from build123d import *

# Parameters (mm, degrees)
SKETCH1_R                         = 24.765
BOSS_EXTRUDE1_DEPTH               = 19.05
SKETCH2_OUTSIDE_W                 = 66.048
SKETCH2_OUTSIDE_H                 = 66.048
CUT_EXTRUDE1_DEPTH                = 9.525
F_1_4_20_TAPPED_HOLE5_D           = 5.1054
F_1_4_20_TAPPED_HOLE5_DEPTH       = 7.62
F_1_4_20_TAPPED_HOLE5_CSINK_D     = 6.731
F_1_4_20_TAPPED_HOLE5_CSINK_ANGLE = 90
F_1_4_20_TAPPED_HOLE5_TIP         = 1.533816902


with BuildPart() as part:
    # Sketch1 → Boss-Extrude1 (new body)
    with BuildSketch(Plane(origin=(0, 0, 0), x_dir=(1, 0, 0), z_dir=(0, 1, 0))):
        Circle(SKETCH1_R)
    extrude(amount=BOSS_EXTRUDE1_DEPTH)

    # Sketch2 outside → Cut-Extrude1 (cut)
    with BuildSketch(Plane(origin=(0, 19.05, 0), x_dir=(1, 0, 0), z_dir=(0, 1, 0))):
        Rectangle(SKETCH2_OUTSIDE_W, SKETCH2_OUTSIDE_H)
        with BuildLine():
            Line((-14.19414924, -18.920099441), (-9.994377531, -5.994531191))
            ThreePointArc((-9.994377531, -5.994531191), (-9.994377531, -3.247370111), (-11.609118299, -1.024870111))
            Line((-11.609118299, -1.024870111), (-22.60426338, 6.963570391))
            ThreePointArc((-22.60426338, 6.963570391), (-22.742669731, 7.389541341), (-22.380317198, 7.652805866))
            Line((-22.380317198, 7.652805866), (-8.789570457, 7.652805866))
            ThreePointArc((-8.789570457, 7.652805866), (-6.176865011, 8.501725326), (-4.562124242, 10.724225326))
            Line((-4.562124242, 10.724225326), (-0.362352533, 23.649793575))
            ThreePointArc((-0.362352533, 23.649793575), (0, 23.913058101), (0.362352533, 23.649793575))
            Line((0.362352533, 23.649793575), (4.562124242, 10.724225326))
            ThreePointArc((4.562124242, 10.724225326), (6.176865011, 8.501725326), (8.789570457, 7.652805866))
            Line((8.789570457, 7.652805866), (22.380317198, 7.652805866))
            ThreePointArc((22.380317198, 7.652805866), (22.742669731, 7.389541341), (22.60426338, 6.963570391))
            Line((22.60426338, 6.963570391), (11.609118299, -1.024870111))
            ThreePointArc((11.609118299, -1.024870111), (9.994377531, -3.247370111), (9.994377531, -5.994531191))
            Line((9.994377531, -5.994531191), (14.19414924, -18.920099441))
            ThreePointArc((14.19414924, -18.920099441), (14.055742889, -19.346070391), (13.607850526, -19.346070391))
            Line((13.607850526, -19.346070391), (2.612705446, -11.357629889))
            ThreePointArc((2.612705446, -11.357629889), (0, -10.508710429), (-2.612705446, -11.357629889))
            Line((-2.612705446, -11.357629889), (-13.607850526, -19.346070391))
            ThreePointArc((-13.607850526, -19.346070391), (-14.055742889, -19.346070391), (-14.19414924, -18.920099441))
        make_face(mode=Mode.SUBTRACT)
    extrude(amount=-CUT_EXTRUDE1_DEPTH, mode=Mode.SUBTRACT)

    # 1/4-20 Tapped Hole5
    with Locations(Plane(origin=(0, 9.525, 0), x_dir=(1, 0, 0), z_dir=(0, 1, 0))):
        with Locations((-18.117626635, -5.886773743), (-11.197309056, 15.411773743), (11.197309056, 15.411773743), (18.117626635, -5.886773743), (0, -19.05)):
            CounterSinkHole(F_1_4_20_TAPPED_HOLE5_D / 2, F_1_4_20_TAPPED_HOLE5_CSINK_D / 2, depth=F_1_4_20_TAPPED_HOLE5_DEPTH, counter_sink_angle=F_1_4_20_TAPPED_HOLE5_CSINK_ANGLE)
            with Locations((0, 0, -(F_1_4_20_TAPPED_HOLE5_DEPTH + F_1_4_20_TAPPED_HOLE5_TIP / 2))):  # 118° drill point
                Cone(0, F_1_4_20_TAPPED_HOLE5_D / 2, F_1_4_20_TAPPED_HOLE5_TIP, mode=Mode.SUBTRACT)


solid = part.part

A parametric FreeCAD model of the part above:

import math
import FreeCAD as App
import Part
import Sketcher
Q = App.Units.Quantity


def add_polygon(sketch, points):
    """Adds a closed chain of lines whose ends are joined by coincident constraints."""
    first, n = sketch.GeometryCount, len(points)
    for a, b in zip(points, points[1:] + points[:1]):
        sketch.addGeometry(Part.LineSegment(App.Vector(*a, 0), App.Vector(*b, 0)), False)
    for i in range(n):
        sketch.addConstraint(Sketcher.Constraint("Coincident", first + i, 2, first + (i + 1) % n, 1))

doc = App.newDocument("Part")
body = doc.addObject("PartDesign::Body", "Body")

# Sketch on XZ plane
sketch1 = body.newObject("Sketcher::SketchObject", "Sketch")
sketch1.AttachmentSupport = (doc.getObject("XZ_Plane"), [""])
sketch1.MapMode = "FlatFace"
sketch1.addGeometry(Part.Circle(App.Vector(0, 0, 0), App.Vector(0, 0, 1), 24.765), False)
sketch1.addConstraint(Sketcher.Constraint("Coincident", 0, 3, -1, 1))
sketch1.addConstraint(Sketcher.Constraint("Diameter", 0, Q("1.95 in")))
pad1 = body.newObject("PartDesign::Pad", "Pad")
pad1.Profile = sketch1
pad1.Length = Q("0.75 in")
pad1.Reversed = True

# Sketch on XZ plane
sketch2 = body.newObject("Sketcher::SketchObject", "Sketch001")
sketch2.AttachmentSupport = (doc.getObject("XZ_Plane"), [""])
sketch2.MapMode = "FlatFace"
sketch2.AttachmentOffset = App.Placement(App.Vector(0, 0, -0.75 * 25.4), App.Rotation())
add_polygon(sketch2, [(-33.024, -33.024), (-33.024, 33.024), (33.024, 33.024), (33.024, -33.024)])  # lines 0-3
sketch2.addGeometry(Part.ArcOfCircle(Part.Circle(App.Vector(-13.831797, 19.037835, 0), App.Vector(0, 0, 1), 0.381), math.radians(54), math.radians(198)), False)  # 4
sketch2.addGeometry(Part.LineSegment(App.Vector(-14.194149, 18.920099, 0), App.Vector(-9.994378, 5.994531, 0)), False)  # 5
sketch2.addGeometry(Part.ArcOfCircle(Part.Circle(App.Vector(-14.221824, 4.620951, 0), App.Vector(0, 0, 1), 4.445), math.radians(-54), math.radians(18)), False)  # 6
sketch2.addGeometry(Part.LineSegment(App.Vector(-11.609118, 1.02487, 0), App.Vector(-22.604263, -6.96357, 0)), False)  # 7
sketch2.addGeometry(Part.ArcOfCircle(Part.Circle(App.Vector(-22.380317, -7.271806, 0), App.Vector(0, 0, 1), 0.381), math.radians(126), math.radians(270)), False)  # 8
sketch2.addGeometry(Part.LineSegment(App.Vector(-22.380317, -7.652806, 0), App.Vector(-8.78957, -7.652806, 0)), False)  # 9
sketch2.addGeometry(Part.ArcOfCircle(Part.Circle(App.Vector(-8.78957, -12.097806, 0), App.Vector(0, 0, 1), 4.445), math.radians(18), math.radians(90)), False)  # 10
sketch2.addGeometry(Part.LineSegment(App.Vector(-4.562124, -10.724225, 0), App.Vector(-0.362353, -23.649794, 0)), False)  # 11
sketch2.addGeometry(Part.ArcOfCircle(Part.Circle(App.Vector(0, -23.532058, 0), App.Vector(0, 0, 1), 0.381), math.radians(-162), math.radians(-18)), False)  # 12
sketch2.addGeometry(Part.LineSegment(App.Vector(0.362353, -23.649794, 0), App.Vector(4.562124, -10.724225, 0)), False)  # 13
sketch2.addGeometry(Part.ArcOfCircle(Part.Circle(App.Vector(8.78957, -12.097806, 0), App.Vector(0, 0, 1), 4.445), math.radians(90), math.radians(162)), False)  # 14
sketch2.addGeometry(Part.LineSegment(App.Vector(8.78957, -7.652806, 0), App.Vector(22.380317, -7.652806, 0)), False)  # 15
sketch2.addGeometry(Part.ArcOfCircle(Part.Circle(App.Vector(22.380317, -7.271806, 0), App.Vector(0, 0, 1), 0.381), math.radians(-90), math.radians(54)), False)  # 16
sketch2.addGeometry(Part.LineSegment(App.Vector(22.604263, -6.96357, 0), App.Vector(11.609118, 1.02487, 0)), False)  # 17
sketch2.addGeometry(Part.ArcOfCircle(Part.Circle(App.Vector(14.221824, 4.620951, 0), App.Vector(0, 0, 1), 4.445), math.radians(162), math.radians(234)), False)  # 18
sketch2.addGeometry(Part.LineSegment(App.Vector(9.994378, 5.994531, 0), App.Vector(14.194149, 18.920099, 0)), False)  # 19
sketch2.addGeometry(Part.ArcOfCircle(Part.Circle(App.Vector(13.831797, 19.037835, 0), App.Vector(0, 0, 1), 0.381), math.radians(-18), math.radians(126)), False)  # 20
sketch2.addGeometry(Part.LineSegment(App.Vector(13.607851, 19.34607, 0), App.Vector(2.612705, 11.35763, 0)), False)  # 21
sketch2.addGeometry(Part.ArcOfCircle(Part.Circle(App.Vector(0, 14.95371, 0), App.Vector(0, 0, 1), 4.445), math.radians(-126), math.radians(-54)), False)  # 22
sketch2.addGeometry(Part.LineSegment(App.Vector(-2.612705, 11.35763, 0), App.Vector(-13.607851, 19.34607, 0)), False)  # 23
sketch2.addConstraint(Sketcher.Constraint("Tangent", 4, 2, 5, 1))
sketch2.addConstraint(Sketcher.Constraint("Tangent", 5, 2, 6, 2))
sketch2.addConstraint(Sketcher.Constraint("Tangent", 6, 1, 7, 1))
sketch2.addConstraint(Sketcher.Constraint("Tangent", 7, 2, 8, 1))
sketch2.addConstraint(Sketcher.Constraint("Tangent", 8, 2, 9, 1))
sketch2.addConstraint(Sketcher.Constraint("Tangent", 9, 2, 10, 2))
sketch2.addConstraint(Sketcher.Constraint("Tangent", 10, 1, 11, 1))
sketch2.addConstraint(Sketcher.Constraint("Tangent", 11, 2, 12, 1))
sketch2.addConstraint(Sketcher.Constraint("Tangent", 12, 2, 13, 1))
sketch2.addConstraint(Sketcher.Constraint("Tangent", 13, 2, 14, 2))
sketch2.addConstraint(Sketcher.Constraint("Tangent", 14, 1, 15, 1))
sketch2.addConstraint(Sketcher.Constraint("Tangent", 15, 2, 16, 1))
sketch2.addConstraint(Sketcher.Constraint("Tangent", 16, 2, 17, 1))
sketch2.addConstraint(Sketcher.Constraint("Tangent", 17, 2, 18, 2))
sketch2.addConstraint(Sketcher.Constraint("Tangent", 18, 1, 19, 1))
sketch2.addConstraint(Sketcher.Constraint("Tangent", 19, 2, 20, 1))
sketch2.addConstraint(Sketcher.Constraint("Tangent", 20, 2, 21, 1))
sketch2.addConstraint(Sketcher.Constraint("Tangent", 21, 2, 22, 2))
sketch2.addConstraint(Sketcher.Constraint("Tangent", 22, 1, 23, 1))
sketch2.addConstraint(Sketcher.Constraint("Tangent", 23, 2, 4, 1))
sketch2.addConstraint(Sketcher.Constraint("Vertical", 0))
sketch2.addConstraint(Sketcher.Constraint("Horizontal", 1))
sketch2.addConstraint(Sketcher.Constraint("Vertical", 2))
sketch2.addConstraint(Sketcher.Constraint("Horizontal", 3))
sketch2.addConstraint(Sketcher.Constraint("Horizontal", 9))
sketch2.addConstraint(Sketcher.Constraint("Horizontal", 15))
sketch2.addConstraint(Sketcher.Constraint("Equal", 4, 8))
sketch2.addConstraint(Sketcher.Constraint("Equal", 6, 10))
sketch2.addConstraint(Sketcher.Constraint("Equal", 8, 12))
sketch2.addConstraint(Sketcher.Constraint("Equal", 10, 14))
sketch2.addConstraint(Sketcher.Constraint("Equal", 12, 16))
sketch2.addConstraint(Sketcher.Constraint("Equal", 14, 18))
sketch2.addConstraint(Sketcher.Constraint("Equal", 16, 20))
sketch2.addConstraint(Sketcher.Constraint("Equal", 18, 22))
sketch2.addConstraint(Sketcher.Constraint("Symmetric", 0, 2, 2, 2, -1, 1))
sketch2.addConstraint(Sketcher.Constraint("Symmetric", 10, 3, 14, 3, -2))
sketch2.addConstraint(Sketcher.Constraint("Symmetric", 6, 3, 18, 3, -2))
sketch2.addConstraint(Sketcher.Constraint("Symmetric", 4, 3, 20, 3, -2))
sketch2.addConstraint(Sketcher.Constraint("PointOnObject", 12, 3, -2))
sketch2.addConstraint(Sketcher.Constraint("PointOnObject", 22, 3, -2))
sketch2.addConstraint(Sketcher.Constraint("Parallel", 5, 11))
sketch2.addConstraint(Sketcher.Constraint("Parallel", 7, 21))
sketch2.addConstraint(Sketcher.Constraint("Parallel", 17, 23))
sketch2.addConstraint(Sketcher.Constraint("Equal", 3, 0))
sketch2.addConstraint(Sketcher.Constraint("Equal", 5, 7))
sketch2.addConstraint(Sketcher.Constraint("Equal", 7, 11))
sketch2.addConstraint(Sketcher.Constraint("Equal", 19, 21))
sketch2.addConstraint(Sketcher.Constraint("Angle", 5, Q("-72 deg")))
sketch2.addConstraint(Sketcher.Constraint("Angle", 7, Q("-144 deg")))
sketch2.addConstraint(Sketcher.Constraint("Radius", 4, Q("0.015 in")))
sketch2.addConstraint(Sketcher.Constraint("Radius", 6, Q("0.175 in")))
sketch2.addConstraint(Sketcher.Constraint("DistanceX", 1, 1, 1, 2, 66.048))
sketch2.addConstraint(Sketcher.Constraint("DistanceY", -1, 1, 4, 2, 18.920099))
sketch2.addConstraint(Sketcher.Constraint("DistanceX", 8, 3, 6, 1, 10.771199))
pocket1 = body.newObject("PartDesign::Pocket", "Pocket")
pocket1.Profile = sketch2
pocket1.Length = Q("0.375 in")
pocket1.Reversed = True

# Sketch on XZ plane
sketch3 = body.newObject("Sketcher::SketchObject", "Sketch002")
sketch3.AttachmentSupport = (doc.getObject("XZ_Plane"), [""])
sketch3.MapMode = "FlatFace"
sketch3.AttachmentOffset = App.Placement(App.Vector(0, 0, -0.375 * 25.4), App.Rotation())
sketch3.addGeometry(Part.Circle(App.Vector(-18.117627, 5.886774, 0), App.Vector(0, 0, 1), 2.5527), False)
sketch3.addGeometry(Part.Circle(App.Vector(-11.197309, -15.411774, 0), App.Vector(0, 0, 1), 2.5527), False)
sketch3.addGeometry(Part.Circle(App.Vector(11.197309, -15.411774, 0), App.Vector(0, 0, 1), 2.5527), False)
sketch3.addGeometry(Part.Circle(App.Vector(18.117627, 5.886774, 0), App.Vector(0, 0, 1), 2.5527), False)
sketch3.addGeometry(Part.Circle(App.Vector(0, 19.05, 0), App.Vector(0, 0, 1), 2.5527), False)
sketch3.addConstraint(Sketcher.Constraint("Equal", 0, 1))
sketch3.addConstraint(Sketcher.Constraint("Equal", 1, 2))
sketch3.addConstraint(Sketcher.Constraint("Equal", 2, 3))
sketch3.addConstraint(Sketcher.Constraint("Equal", 3, 4))
sketch3.addConstraint(Sketcher.Constraint("Symmetric", 1, 3, 2, 3, -2))
sketch3.addConstraint(Sketcher.Constraint("Symmetric", 0, 3, 3, 3, -2))
sketch3.addConstraint(Sketcher.Constraint("PointOnObject", 4, 3, -2))
sketch3.addConstraint(Sketcher.Constraint("Diameter", 0, Q("0.201 in")))
sketch3.addConstraint(Sketcher.Constraint("DistanceY", -1, 1, 4, 3, Q("0.75 in")))
sketch3.addConstraint(Sketcher.Constraint("DistanceX", 1, 3, -1, 1, 11.197309))
sketch3.addConstraint(Sketcher.Constraint("DistanceX", 0, 3, -1, 1, 18.117627))
sketch3.addConstraint(Sketcher.Constraint("DistanceY", -1, 1, 0, 3, 5.886774))
sketch3.addConstraint(Sketcher.Constraint("DistanceY", 1, 3, -1, 1, 15.411774))
doc.recompute()
hole = body.newObject("PartDesign::Hole", "Hole")
hole.Profile = sketch3
hole.ThreadType = "None"
hole.Diameter = Q("0.201 in")
hole.DepthType = "Dimension"
hole.Depth = Q("0.3 in")
hole.DrillPoint = "Angled"
hole.DrillPointAngle = 118
hole.HoleCutType = "Countersink"
hole.HoleCutDiameter = Q("0.265 in")
hole.HoleCutCountersinkAngle = 90
hole.Reversed = True

doc.recompute()
